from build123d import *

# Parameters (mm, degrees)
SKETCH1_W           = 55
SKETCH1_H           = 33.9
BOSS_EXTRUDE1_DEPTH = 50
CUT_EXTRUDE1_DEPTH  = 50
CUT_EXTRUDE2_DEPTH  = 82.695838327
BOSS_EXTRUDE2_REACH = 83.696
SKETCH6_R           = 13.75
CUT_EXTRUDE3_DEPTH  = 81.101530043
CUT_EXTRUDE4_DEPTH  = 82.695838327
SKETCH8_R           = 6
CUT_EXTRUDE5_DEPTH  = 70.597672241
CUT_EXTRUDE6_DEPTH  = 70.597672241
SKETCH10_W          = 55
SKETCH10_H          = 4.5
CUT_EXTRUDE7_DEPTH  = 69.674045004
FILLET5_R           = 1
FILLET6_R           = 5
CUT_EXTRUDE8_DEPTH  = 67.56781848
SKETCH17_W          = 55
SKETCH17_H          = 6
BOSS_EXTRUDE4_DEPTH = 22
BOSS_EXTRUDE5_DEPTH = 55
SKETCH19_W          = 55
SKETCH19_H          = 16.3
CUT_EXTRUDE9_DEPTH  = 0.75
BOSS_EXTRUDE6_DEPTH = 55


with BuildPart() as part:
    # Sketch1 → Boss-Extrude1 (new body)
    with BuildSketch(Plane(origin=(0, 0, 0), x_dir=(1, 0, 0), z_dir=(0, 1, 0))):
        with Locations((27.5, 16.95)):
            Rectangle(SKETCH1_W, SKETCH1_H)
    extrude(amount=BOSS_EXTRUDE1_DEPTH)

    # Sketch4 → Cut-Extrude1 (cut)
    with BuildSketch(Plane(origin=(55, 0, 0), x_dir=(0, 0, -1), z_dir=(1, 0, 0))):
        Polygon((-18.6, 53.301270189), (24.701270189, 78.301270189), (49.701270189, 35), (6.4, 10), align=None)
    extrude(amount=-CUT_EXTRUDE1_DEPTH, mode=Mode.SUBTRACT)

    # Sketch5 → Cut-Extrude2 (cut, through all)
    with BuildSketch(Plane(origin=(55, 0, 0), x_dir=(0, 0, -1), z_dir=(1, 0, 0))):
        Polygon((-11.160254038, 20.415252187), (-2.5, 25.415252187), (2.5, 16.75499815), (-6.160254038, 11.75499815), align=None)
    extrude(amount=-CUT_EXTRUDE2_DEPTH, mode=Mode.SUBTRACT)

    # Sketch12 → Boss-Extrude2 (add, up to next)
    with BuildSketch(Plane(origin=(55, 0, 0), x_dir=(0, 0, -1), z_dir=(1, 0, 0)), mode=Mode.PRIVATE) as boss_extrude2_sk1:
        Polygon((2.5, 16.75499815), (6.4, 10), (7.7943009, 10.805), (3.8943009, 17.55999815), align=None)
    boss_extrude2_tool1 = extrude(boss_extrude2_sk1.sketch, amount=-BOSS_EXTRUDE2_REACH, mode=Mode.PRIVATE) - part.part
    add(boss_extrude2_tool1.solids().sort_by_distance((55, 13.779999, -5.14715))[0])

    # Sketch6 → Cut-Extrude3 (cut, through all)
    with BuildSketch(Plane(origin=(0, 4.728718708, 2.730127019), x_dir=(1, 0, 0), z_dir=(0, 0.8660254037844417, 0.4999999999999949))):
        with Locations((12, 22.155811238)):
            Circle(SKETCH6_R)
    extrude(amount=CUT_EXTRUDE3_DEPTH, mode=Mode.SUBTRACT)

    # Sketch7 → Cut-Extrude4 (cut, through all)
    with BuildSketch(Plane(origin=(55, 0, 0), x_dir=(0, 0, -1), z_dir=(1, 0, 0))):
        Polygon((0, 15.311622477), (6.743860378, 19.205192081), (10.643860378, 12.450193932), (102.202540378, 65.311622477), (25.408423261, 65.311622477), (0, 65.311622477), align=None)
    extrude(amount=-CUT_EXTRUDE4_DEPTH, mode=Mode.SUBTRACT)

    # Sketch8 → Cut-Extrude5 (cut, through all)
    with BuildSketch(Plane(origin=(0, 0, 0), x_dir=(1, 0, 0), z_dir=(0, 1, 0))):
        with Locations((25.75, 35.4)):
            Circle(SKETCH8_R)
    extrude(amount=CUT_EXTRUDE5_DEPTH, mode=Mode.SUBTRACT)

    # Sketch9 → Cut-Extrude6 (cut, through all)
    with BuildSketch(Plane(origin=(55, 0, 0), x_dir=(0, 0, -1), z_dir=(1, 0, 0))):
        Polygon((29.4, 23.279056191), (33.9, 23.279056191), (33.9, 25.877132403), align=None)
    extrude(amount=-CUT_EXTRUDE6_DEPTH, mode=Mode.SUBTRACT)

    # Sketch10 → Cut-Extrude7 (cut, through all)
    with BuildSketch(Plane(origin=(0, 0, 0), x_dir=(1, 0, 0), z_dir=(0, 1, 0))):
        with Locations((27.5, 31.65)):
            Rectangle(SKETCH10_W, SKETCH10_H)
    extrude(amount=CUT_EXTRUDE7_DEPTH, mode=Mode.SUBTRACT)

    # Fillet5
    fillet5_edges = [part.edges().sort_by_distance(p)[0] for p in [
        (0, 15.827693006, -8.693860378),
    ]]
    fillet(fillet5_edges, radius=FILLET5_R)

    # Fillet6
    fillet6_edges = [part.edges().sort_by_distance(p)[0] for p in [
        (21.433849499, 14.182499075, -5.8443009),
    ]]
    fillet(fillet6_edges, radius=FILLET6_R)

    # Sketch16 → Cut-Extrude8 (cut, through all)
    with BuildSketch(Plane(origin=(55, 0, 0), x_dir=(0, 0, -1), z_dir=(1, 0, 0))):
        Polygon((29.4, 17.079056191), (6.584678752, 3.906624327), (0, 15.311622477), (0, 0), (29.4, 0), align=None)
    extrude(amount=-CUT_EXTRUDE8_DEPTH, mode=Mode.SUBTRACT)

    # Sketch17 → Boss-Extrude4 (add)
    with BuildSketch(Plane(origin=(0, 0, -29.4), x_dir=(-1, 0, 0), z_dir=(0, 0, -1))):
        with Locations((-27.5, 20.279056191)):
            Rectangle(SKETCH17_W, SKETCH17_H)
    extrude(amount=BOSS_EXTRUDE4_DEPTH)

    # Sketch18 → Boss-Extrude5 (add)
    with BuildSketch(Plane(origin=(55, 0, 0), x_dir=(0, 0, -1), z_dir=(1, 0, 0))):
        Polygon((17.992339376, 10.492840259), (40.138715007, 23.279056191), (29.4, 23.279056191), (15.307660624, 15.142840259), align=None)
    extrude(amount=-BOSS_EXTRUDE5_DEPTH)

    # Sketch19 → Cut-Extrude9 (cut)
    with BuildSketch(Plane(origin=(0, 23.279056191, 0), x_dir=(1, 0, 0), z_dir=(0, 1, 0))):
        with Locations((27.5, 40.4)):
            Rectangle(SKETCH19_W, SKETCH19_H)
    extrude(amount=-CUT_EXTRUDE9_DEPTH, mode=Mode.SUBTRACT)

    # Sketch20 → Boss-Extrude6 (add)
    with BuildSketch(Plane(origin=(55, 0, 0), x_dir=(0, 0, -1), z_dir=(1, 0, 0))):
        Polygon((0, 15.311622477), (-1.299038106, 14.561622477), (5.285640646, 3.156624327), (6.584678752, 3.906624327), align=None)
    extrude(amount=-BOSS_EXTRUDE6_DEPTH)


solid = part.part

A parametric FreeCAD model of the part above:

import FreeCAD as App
import Part
import Sketcher
Q = App.Units.Quantity


def edges_at(feature, points):
    """Names of the edges that pass closest to the given points."""
    edges = feature.Shape.Edges
    near = lambda p: min(range(len(edges)), key=lambda i: edges[i].distToShape(Part.Vertex(*p))[0])
    return sorted({f"Edge{near(p) + 1}" for p in points})


def add_polygon(sketch, points):
    """Adds a closed chain of lines whose ends are joined by coincident constraints."""
    first, n = sketch.GeometryCount, len(points)
    for a, b in zip(points, points[1:] + points[:1]):
        sketch.addGeometry(Part.LineSegment(App.Vector(*a, 0), App.Vector(*b, 0)), False)
    for i in range(n):
        sketch.addConstraint(Sketcher.Constraint("Coincident", first + i, 2, first + (i + 1) % n, 1))

doc = App.newDocument("Part")
body = doc.addObject("PartDesign::Body", "Body")

# Sketch on XZ plane
sketch1 = body.newObject("Sketcher::SketchObject", "Sketch")
sketch1.AttachmentSupport = (doc.getObject("XZ_Plane"), [""])
sketch1.MapMode = "FlatFace"
add_polygon(sketch1, [(0, -34), (0, 0), (55, 0), (55, -34)])  # lines 0-3
sketch1.addConstraint(Sketcher.Constraint("Vertical", 0))
sketch1.addConstraint(Sketcher.Constraint("Horizontal", 1))
sketch1.addConstraint(Sketcher.Constraint("Vertical", 2))
sketch1.addConstraint(Sketcher.Constraint("Horizontal", 3))
sketch1.addConstraint(Sketcher.Constraint("Coincident", 0, 2, -1, 1))
sketch1.addConstraint(Sketcher.Constraint("DistanceX", 1, 1, 1, 2, 55.0))
sketch1.addConstraint(Sketcher.Constraint("DistanceY", 0, 1, 0, 2, 33.9))
pad1 = body.newObject("PartDesign::Pad", "Pad")
pad1.Profile = sketch1
pad1.Length = 50
pad1.Reversed = True

# Sketch on YZ plane
sketch2 = body.newObject("Sketcher::SketchObject", "Sketch001")
sketch2.AttachmentSupport = (doc.getObject("YZ_Plane"), [""])
sketch2.MapMode = "FlatFace"
sketch2.AttachmentOffset = App.Placement(App.Vector(0, 0, 55), App.Rotation())
add_polygon(sketch2, [(78, -25), (53, 19), (10, -6), (35, -50)])  # lines 0-3
sketch2.addConstraint(Sketcher.Constraint("Perpendicular", 0, 1))
sketch2.addConstraint(Sketcher.Constraint("Perpendicular", 1, 2))
sketch2.addConstraint(Sketcher.Constraint("Perpendicular", 2, 3))
sketch2.addConstraint(Sketcher.Constraint("Equal", 0, 1))
sketch2.addConstraint(Sketcher.Constraint("Angle", 0, Q("120 deg")))
sketch2.addConstraint(Sketcher.Constraint("Distance", 0, 50.0))
sketch2.addConstraint(Sketcher.Constraint("DistanceX", -1, 1, 1, 2, 10.0))
sketch2.addConstraint(Sketcher.Constraint("DistanceY", -1, 1, 0, 2, 18.6))
pocket1 = body.newObject("PartDesign::Pocket", "Pocket")
pocket1.Profile = sketch2
pocket1.Length = 50

# Sketch on YZ plane
sketch3 = body.newObject("Sketcher::SketchObject", "Sketch002")
sketch3.AttachmentSupport = (doc.getObject("YZ_Plane"), [""])
sketch3.MapMode = "FlatFace"
sketch3.AttachmentOffset = App.Placement(App.Vector(0, 0, 55), App.Rotation())
add_polygon(sketch3, [(25, 2), (20, 11), (12, 6), (17, -2)])  # lines 0-3
sketch3.addConstraint(Sketcher.Constraint("Perpendicular", 0, 1))
sketch3.addConstraint(Sketcher.Constraint("Perpendicular", 1, 2))
sketch3.addConstraint(Sketcher.Constraint("Perpendicular", 2, 3))
sketch3.addConstraint(Sketcher.Constraint("Equal", 0, 1))
sketch3.addConstraint(Sketcher.Constraint("Angle", 0, Q("120 deg")))
sketch3.addConstraint(Sketcher.Constraint("Distance", 0, 10.0))
sketch3.addConstraint(Sketcher.Constraint("DistanceY", 2, 2, -1, 1, 2.5))
sketch3.addConstraint(Sketcher.Constraint("DistanceX", -1, 1, 1, 2, 11.754998))
pocket2 = body.newObject("PartDesign::Pocket", "Pocket001")
pocket2.Profile = sketch3
pocket2.Type = "ThroughAll"

# Sketch on YZ plane
sketch4 = body.newObject("Sketcher::SketchObject", "Sketch003")
sketch4.AttachmentSupport = (doc.getObject("YZ_Plane"), [""])
sketch4.MapMode = "FlatFace"
sketch4.AttachmentOffset = App.Placement(App.Vector(0, 0, 55), App.Rotation())
add_polygon(sketch4, [(16.8, -2.5), (10, -6.4), (10.8, -7.8), (17.6, -3.9)])  # lines 0-3
sketch4.addConstraint(Sketcher.Constraint("Perpendicular", 0, 1))
sketch4.addConstraint(Sketcher.Constraint("Perpendicular", 1, 2))
sketch4.addConstraint(Sketcher.Constraint("Perpendicular", 2, 3))
sketch4.addConstraint(Sketcher.Constraint("Angle", 0, Q("-150 deg")))
sketch4.addConstraint(Sketcher.Constraint("DistanceX", -1, 1, 0, 2, 10.0))
sketch4.addConstraint(Sketcher.Constraint("Distance", 0, 7.8))
sketch4.addConstraint(Sketcher.Constraint("DistanceY", 0, 2, -1, 1, 6.4))
sketch4.addConstraint(Sketcher.Constraint("Distance", 1, 1.61))
pad2 = body.newObject("PartDesign::Pad", "Pad001")
pad2.Profile = sketch4
pad2.Type = "UpToFirst"
pad2.Reversed = True

# Sketch on an angled plane
sketch5 = body.newObject("Sketcher::SketchObject", "Sketch004")
sketch5.Placement = App.Placement(App.Vector(0, 4.728719, 2.730127), App.Rotation(App.Vector(1, 0, 0), App.Vector(0, 0.5, -0.866025404), App.Vector(0, 0.866025404, 0.5), "ZXY"))
sketch5.addGeometry(Part.Circle(App.Vector(12, 22, 0), App.Vector(0, 0, 1), 14), False)
sketch5.addConstraint(Sketcher.Constraint("Diameter", 0, 27.5))
sketch5.addConstraint(Sketcher.Constraint("DistanceX", -1, 1, 0, 3, 12.0))
sketch5.addConstraint(Sketcher.Constraint("DistanceY", -1, 1, 0, 3, 22.155811))
pocket3 = body.newObject("PartDesign::Pocket", "Pocket002")
pocket3.Profile = sketch5
pocket3.Type = "ThroughAll"
pocket3.Reversed = True

# Sketch on YZ plane
sketch6 = body.newObject("Sketcher::SketchObject", "Sketch005")
sketch6.AttachmentSupport = (doc.getObject("YZ_Plane"), [""])
sketch6.MapMode = "FlatFace"
sketch6.AttachmentOffset = App.Placement(App.Vector(0, 0, 55), App.Rotation())
add_polygon(sketch6, [(15, 0), (19, -7), (12, -11), (65, -102), (65, 0)])  # lines 0-4
sketch6.addConstraint(Sketcher.Constraint("Vertical", 3))
sketch6.addConstraint(Sketcher.Constraint("Horizontal", 4))
sketch6.addConstraint(Sketcher.Constraint("PointOnObject", 3, 2, -1))
sketch6.addConstraint(Sketcher.Constraint("Perpendicular", 0, 1))
sketch6.addConstraint(Sketcher.Constraint("Perpendicular", 1, 2))
sketch6.addConstraint(Sketcher.Constraint("DistanceX", 4, 2, 4, 1, 50.0))
sketch6.addConstraint(Sketcher.Constraint("Angle", 0, Q("-60 deg")))
sketch6.addConstraint(Sketcher.Constraint("Distance", 1, 7.8))
sketch6.addConstraint(Sketcher.Constraint("Distance", 0, 7.787139))
sketch6.addConstraint(Sketcher.Constraint("DistanceX", -1, 1, 0, 2, 19.205192))
pocket4 = body.newObject("PartDesign::Pocket", "Pocket003")
pocket4.Profile = sketch6
pocket4.Type = "ThroughAll"

# Sketch on XZ plane
sketch7 = body.newObject("Sketcher::SketchObject", "Sketch006")
sketch7.AttachmentSupport = (doc.getObject("XZ_Plane"), [""])
sketch7.MapMode = "FlatFace"
sketch7.addGeometry(Part.Circle(App.Vector(26, -35, 0), App.Vector(0, 0, 1), 6), False)
sketch7.addConstraint(Sketcher.Constraint("Diameter", 0, 12.0))
sketch7.addConstraint(Sketcher.Constraint("DistanceY", 0, 3, -1, 1, 35.4))
sketch7.addConstraint(Sketcher.Constraint("DistanceX", -1, 1, 0, 3, 25.75))
pocket5 = body.newObject("PartDesign::Pocket", "Pocket004")
pocket5.Profile = sketch7
pocket5.Type = "ThroughAll"

# Sketch on YZ plane
sketch8 = body.newObject("Sketcher::SketchObject", "Sketch007")
sketch8.AttachmentSupport = (doc.getObject("YZ_Plane"), [""])
sketch8.MapMode = "FlatFace"
sketch8.AttachmentOffset = App.Placement(App.Vector(0, 0, 55), App.Rotation())
add_polygon(sketch8, [(23.3, -29.4), (23.3, -33.9), (25.9, -33.9)])  # lines 0-2
sketch8.addConstraint(Sketcher.Constraint("Vertical", 0))
sketch8.addConstraint(Sketcher.Constraint("Horizontal", 1))
sketch8.addConstraint(Sketcher.Constraint("Angle", 2, Q("120 deg")))
sketch8.addConstraint(Sketcher.Constraint("DistanceY", 0, 2, 0, 1, 4.5))
sketch8.addConstraint(Sketcher.Constraint("DistanceY", 0, 2, -1, 1, 33.9))
sketch8.addConstraint(Sketcher.Constraint("DistanceX", -1, 1, 0, 2, 23.279056))
pocket6 = body.newObject("PartDesign::Pocket", "Pocket005")
pocket6.Profile = sketch8
pocket6.Type = "ThroughAll"

# Sketch on XZ plane
sketch9 = body.newObject("Sketcher::SketchObject", "Sketch008")
sketch9.AttachmentSupport = (doc.getObject("XZ_Plane"), [""])
sketch9.MapMode = "FlatFace"
add_polygon(sketch9, [(0, -33.9), (0, -29.4), (55, -29.4), (55, -33.9)])  # lines 0-3
sketch9.addConstraint(Sketcher.Constraint("Vertical", 0))
sketch9.addConstraint(Sketcher.Constraint("Horizontal", 1))
sketch9.addConstraint(Sketcher.Constraint("Vertical", 2))
sketch9.addConstraint(Sketcher.Constraint("Horizontal", 3))
sketch9.addConstraint(Sketcher.Constraint("PointOnObject", 0, 2, -2))
sketch9.addConstraint(Sketcher.Constraint("DistanceX", 1, 1, 1, 2, 55.0))
sketch9.addConstraint(Sketcher.Constraint("DistanceY", 0, 1, 0, 2, 4.5))
sketch9.addConstraint(Sketcher.Constraint("DistanceY", 0, 2, -1, 1, 29.4))
pocket7 = body.newObject("PartDesign::Pocket", "Pocket006")
pocket7.Profile = sketch9
pocket7.Type = "ThroughAll"
doc.recompute()

fillet = body.newObject("PartDesign::Fillet", "Fillet")
fillet.Base = (pocket7, edges_at(pocket7, [(0, 15.828, -8.694)]))
fillet.Radius = 1
doc.recompute()

fillet2 = body.newObject("PartDesign::Fillet", "Fillet001")
fillet2.Base = (fillet, edges_at(fillet, [(21.434, 14.182, -5.844)]))
fillet2.Radius = 5

# Sketch on YZ plane
sketch10 = body.newObject("Sketcher::SketchObject", "Sketch009")
sketch10.AttachmentSupport = (doc.getObject("YZ_Plane"), [""])
sketch10.MapMode = "FlatFace"
sketch10.AttachmentOffset = App.Placement(App.Vector(0, 0, 55), App.Rotation())
add_polygon(sketch10, [(17, -29), (4, -7), (15, 0), (0, 0), (0, -29)])  # lines 0-4
sketch10.addConstraint(Sketcher.Constraint("Horizontal", 2))
sketch10.addConstraint(Sketcher.Constraint("Vertical", 3))
sketch10.addConstraint(Sketcher.Constraint("Horizontal", 4))
sketch10.addConstraint(Sketcher.Constraint("Coincident", 2, 2, -1, 1))
sketch10.addConstraint(Sketcher.Constraint("Perpendicular", 0, 1))
sketch10.addConstraint(Sketcher.Constraint("Angle", 0, Q("120 deg")))
sketch10.addConstraint(Sketcher.Constraint("DistanceY", 3, 2, 3, 1, 29.4))
sketch10.addConstraint(Sketcher.Constraint("DistanceX", 0, 2, 1, 2, 11.404998))
sketch10.addConstraint(Sketcher.Constraint("DistanceX", 2, 2, 2, 1, 15.311622))
pocket8 = body.newObject("PartDesign::Pocket", "Pocket007")
pocket8.Profile = sketch10
pocket8.Type = "ThroughAll"

# Sketch on XY plane
sketch11 = body.newObject("Sketcher::SketchObject", "Sketch010")
sketch11.AttachmentSupport = (doc.getObject("XY_Plane"), [""])
sketch11.MapMode = "FlatFace"
sketch11.AttachmentOffset = App.Placement(App.Vector(0, 0, -29.4), App.Rotation())
add_polygon(sketch11, [(55, 23), (55, 17), (0, 17), (0, 23)])  # lines 0-3
sketch11.addConstraint(Sketcher.Constraint("Vertical", 0))
sketch11.addConstraint(Sketcher.Constraint("Horizontal", 1))
sketch11.addConstraint(Sketcher.Constraint("Vertical", 2))
sketch11.addConstraint(Sketcher.Constraint("Horizontal", 3))
sketch11.addConstraint(Sketcher.Constraint("PointOnObject", 1, 2, -2))
sketch11.addConstraint(Sketcher.Constraint("DistanceX", 1, 2, 1, 1, 55.0))
sketch11.addConstraint(Sketcher.Constraint("DistanceY", 0, 2, 0, 1, 6.0))
sketch11.addConstraint(Sketcher.Constraint("DistanceY", -1, 1, 0, 2, 17.279056))
pad3 = body.newObject("PartDesign::Pad", "Pad002")
pad3.Profile = sketch11
pad3.Length = 22
pad3.Reversed = True

# Sketch on YZ plane
sketch12 = body.newObject("Sketcher::SketchObject", "Sketch011")
sketch12.AttachmentSupport = (doc.getObject("YZ_Plane"), [""])
sketch12.MapMode = "FlatFace"
sketch12.AttachmentOffset = App.Placement(App.Vector(0, 0, 55), App.Rotation())
add_polygon(sketch12, [(10, -18), (23, -40), (23, -29), (15, -15)])  # lines 0-3
sketch12.addConstraint(Sketcher.Constraint("Vertical", 1))
sketch12.addConstraint(Sketcher.Constraint("Parallel", 0, 2))
sketch12.addConstraint(Sketcher.Constraint("Perpendicular", 2, 3))
sketch12.addConstraint(Sketcher.Constraint("Angle", 0, Q("-60 deg")))
sketch12.addConstraint(Sketcher.Constraint("DistanceY", 1, 2, -1, 1, 29.4))
sketch12.addConstraint(Sketcher.Constraint("DistanceX", 3, 2, 2, 2, 4.65))
sketch12.addConstraint(Sketcher.Constraint("Distance", 0, 25.572432))
sketch12.addConstraint(Sketcher.Constraint("DistanceX", -1, 1, 2, 2, 15.14284))
pad4 = body.newObject("PartDesign::Pad", "Pad003")
pad4.Profile = sketch12
pad4.Length = 55
pad4.Reversed = True

# Sketch on XZ plane
sketch13 = body.newObject("Sketcher::SketchObject", "Sketch012")
sketch13.AttachmentSupport = (doc.getObject("XZ_Plane"), [""])
sketch13.MapMode = "FlatFace"
sketch13.AttachmentOffset = App.Placement(App.Vector(0, 0, -23.279056), App.Rotation())
add_polygon(sketch13, [(0, -49), (0, -32), (55, -32), (55, -49)])  # lines 0-3
sketch13.addConstraint(Sketcher.Constraint("Vertical", 0))
sketch13.addConstraint(Sketcher.Constraint("Horizontal", 1))
sketch13.addConstraint(Sketcher.Constraint("Vertical", 2))
sketch13.addConstraint(Sketcher.Constraint("Horizontal", 3))
sketch13.addConstraint(Sketcher.Constraint("PointOnObject", 0, 2, -2))
sketch13.addConstraint(Sketcher.Constraint("DistanceX", 1, 1, 1, 2, 55.0))
sketch13.addConstraint(Sketcher.Constraint("DistanceY", 0, 1, 0, 2, 16.3))
sketch13.addConstraint(Sketcher.Constraint("DistanceY", 0, 2, -1, 1, 32.25))
pocket9 = body.newObject("PartDesign::Pocket", "Pocket008")
pocket9.Profile = sketch13
pocket9.Length = 0.75
pocket9.Reversed = True

# Sketch on YZ plane
sketch14 = body.newObject("Sketcher::SketchObject", "Sketch013")
sketch14.AttachmentSupport = (doc.getObject("YZ_Plane"), [""])
sketch14.MapMode = "FlatFace"
sketch14.AttachmentOffset = App.Placement(App.Vector(0, 0, 55), App.Rotation())
add_polygon(sketch14, [(15.3, 0), (14.6, 1.3), (3.2, -5.3), (3.9, -6.6)])  # lines 0-3
sketch14.addConstraint(Sketcher.Constraint("PointOnObject", 3, 2, -1))
sketch14.addConstraint(Sketcher.Constraint("Perpendicular", 0, 1))
sketch14.addConstraint(Sketcher.Constraint("Perpendicular", 1, 2))
sketch14.addConstraint(Sketcher.Constraint("Perpendicular", 2, 3))
sketch14.addConstraint(Sketcher.Constraint("Angle", 0, Q("120 deg")))
sketch14.addConstraint(Sketcher.Constraint("Distance", 0, 1.5))
sketch14.addConstraint(Sketcher.Constraint("DistanceX", 1, 2, 0, 2, 11.404998))
sketch14.addConstraint(Sketcher.Constraint("DistanceX", -1, 1, 0, 2, 14.561622))
pad5 = body.newObject("PartDesign::Pad", "Pad004")
pad5.Profile = sketch14
pad5.Length = 55
pad5.Reversed = True

doc.recompute()
